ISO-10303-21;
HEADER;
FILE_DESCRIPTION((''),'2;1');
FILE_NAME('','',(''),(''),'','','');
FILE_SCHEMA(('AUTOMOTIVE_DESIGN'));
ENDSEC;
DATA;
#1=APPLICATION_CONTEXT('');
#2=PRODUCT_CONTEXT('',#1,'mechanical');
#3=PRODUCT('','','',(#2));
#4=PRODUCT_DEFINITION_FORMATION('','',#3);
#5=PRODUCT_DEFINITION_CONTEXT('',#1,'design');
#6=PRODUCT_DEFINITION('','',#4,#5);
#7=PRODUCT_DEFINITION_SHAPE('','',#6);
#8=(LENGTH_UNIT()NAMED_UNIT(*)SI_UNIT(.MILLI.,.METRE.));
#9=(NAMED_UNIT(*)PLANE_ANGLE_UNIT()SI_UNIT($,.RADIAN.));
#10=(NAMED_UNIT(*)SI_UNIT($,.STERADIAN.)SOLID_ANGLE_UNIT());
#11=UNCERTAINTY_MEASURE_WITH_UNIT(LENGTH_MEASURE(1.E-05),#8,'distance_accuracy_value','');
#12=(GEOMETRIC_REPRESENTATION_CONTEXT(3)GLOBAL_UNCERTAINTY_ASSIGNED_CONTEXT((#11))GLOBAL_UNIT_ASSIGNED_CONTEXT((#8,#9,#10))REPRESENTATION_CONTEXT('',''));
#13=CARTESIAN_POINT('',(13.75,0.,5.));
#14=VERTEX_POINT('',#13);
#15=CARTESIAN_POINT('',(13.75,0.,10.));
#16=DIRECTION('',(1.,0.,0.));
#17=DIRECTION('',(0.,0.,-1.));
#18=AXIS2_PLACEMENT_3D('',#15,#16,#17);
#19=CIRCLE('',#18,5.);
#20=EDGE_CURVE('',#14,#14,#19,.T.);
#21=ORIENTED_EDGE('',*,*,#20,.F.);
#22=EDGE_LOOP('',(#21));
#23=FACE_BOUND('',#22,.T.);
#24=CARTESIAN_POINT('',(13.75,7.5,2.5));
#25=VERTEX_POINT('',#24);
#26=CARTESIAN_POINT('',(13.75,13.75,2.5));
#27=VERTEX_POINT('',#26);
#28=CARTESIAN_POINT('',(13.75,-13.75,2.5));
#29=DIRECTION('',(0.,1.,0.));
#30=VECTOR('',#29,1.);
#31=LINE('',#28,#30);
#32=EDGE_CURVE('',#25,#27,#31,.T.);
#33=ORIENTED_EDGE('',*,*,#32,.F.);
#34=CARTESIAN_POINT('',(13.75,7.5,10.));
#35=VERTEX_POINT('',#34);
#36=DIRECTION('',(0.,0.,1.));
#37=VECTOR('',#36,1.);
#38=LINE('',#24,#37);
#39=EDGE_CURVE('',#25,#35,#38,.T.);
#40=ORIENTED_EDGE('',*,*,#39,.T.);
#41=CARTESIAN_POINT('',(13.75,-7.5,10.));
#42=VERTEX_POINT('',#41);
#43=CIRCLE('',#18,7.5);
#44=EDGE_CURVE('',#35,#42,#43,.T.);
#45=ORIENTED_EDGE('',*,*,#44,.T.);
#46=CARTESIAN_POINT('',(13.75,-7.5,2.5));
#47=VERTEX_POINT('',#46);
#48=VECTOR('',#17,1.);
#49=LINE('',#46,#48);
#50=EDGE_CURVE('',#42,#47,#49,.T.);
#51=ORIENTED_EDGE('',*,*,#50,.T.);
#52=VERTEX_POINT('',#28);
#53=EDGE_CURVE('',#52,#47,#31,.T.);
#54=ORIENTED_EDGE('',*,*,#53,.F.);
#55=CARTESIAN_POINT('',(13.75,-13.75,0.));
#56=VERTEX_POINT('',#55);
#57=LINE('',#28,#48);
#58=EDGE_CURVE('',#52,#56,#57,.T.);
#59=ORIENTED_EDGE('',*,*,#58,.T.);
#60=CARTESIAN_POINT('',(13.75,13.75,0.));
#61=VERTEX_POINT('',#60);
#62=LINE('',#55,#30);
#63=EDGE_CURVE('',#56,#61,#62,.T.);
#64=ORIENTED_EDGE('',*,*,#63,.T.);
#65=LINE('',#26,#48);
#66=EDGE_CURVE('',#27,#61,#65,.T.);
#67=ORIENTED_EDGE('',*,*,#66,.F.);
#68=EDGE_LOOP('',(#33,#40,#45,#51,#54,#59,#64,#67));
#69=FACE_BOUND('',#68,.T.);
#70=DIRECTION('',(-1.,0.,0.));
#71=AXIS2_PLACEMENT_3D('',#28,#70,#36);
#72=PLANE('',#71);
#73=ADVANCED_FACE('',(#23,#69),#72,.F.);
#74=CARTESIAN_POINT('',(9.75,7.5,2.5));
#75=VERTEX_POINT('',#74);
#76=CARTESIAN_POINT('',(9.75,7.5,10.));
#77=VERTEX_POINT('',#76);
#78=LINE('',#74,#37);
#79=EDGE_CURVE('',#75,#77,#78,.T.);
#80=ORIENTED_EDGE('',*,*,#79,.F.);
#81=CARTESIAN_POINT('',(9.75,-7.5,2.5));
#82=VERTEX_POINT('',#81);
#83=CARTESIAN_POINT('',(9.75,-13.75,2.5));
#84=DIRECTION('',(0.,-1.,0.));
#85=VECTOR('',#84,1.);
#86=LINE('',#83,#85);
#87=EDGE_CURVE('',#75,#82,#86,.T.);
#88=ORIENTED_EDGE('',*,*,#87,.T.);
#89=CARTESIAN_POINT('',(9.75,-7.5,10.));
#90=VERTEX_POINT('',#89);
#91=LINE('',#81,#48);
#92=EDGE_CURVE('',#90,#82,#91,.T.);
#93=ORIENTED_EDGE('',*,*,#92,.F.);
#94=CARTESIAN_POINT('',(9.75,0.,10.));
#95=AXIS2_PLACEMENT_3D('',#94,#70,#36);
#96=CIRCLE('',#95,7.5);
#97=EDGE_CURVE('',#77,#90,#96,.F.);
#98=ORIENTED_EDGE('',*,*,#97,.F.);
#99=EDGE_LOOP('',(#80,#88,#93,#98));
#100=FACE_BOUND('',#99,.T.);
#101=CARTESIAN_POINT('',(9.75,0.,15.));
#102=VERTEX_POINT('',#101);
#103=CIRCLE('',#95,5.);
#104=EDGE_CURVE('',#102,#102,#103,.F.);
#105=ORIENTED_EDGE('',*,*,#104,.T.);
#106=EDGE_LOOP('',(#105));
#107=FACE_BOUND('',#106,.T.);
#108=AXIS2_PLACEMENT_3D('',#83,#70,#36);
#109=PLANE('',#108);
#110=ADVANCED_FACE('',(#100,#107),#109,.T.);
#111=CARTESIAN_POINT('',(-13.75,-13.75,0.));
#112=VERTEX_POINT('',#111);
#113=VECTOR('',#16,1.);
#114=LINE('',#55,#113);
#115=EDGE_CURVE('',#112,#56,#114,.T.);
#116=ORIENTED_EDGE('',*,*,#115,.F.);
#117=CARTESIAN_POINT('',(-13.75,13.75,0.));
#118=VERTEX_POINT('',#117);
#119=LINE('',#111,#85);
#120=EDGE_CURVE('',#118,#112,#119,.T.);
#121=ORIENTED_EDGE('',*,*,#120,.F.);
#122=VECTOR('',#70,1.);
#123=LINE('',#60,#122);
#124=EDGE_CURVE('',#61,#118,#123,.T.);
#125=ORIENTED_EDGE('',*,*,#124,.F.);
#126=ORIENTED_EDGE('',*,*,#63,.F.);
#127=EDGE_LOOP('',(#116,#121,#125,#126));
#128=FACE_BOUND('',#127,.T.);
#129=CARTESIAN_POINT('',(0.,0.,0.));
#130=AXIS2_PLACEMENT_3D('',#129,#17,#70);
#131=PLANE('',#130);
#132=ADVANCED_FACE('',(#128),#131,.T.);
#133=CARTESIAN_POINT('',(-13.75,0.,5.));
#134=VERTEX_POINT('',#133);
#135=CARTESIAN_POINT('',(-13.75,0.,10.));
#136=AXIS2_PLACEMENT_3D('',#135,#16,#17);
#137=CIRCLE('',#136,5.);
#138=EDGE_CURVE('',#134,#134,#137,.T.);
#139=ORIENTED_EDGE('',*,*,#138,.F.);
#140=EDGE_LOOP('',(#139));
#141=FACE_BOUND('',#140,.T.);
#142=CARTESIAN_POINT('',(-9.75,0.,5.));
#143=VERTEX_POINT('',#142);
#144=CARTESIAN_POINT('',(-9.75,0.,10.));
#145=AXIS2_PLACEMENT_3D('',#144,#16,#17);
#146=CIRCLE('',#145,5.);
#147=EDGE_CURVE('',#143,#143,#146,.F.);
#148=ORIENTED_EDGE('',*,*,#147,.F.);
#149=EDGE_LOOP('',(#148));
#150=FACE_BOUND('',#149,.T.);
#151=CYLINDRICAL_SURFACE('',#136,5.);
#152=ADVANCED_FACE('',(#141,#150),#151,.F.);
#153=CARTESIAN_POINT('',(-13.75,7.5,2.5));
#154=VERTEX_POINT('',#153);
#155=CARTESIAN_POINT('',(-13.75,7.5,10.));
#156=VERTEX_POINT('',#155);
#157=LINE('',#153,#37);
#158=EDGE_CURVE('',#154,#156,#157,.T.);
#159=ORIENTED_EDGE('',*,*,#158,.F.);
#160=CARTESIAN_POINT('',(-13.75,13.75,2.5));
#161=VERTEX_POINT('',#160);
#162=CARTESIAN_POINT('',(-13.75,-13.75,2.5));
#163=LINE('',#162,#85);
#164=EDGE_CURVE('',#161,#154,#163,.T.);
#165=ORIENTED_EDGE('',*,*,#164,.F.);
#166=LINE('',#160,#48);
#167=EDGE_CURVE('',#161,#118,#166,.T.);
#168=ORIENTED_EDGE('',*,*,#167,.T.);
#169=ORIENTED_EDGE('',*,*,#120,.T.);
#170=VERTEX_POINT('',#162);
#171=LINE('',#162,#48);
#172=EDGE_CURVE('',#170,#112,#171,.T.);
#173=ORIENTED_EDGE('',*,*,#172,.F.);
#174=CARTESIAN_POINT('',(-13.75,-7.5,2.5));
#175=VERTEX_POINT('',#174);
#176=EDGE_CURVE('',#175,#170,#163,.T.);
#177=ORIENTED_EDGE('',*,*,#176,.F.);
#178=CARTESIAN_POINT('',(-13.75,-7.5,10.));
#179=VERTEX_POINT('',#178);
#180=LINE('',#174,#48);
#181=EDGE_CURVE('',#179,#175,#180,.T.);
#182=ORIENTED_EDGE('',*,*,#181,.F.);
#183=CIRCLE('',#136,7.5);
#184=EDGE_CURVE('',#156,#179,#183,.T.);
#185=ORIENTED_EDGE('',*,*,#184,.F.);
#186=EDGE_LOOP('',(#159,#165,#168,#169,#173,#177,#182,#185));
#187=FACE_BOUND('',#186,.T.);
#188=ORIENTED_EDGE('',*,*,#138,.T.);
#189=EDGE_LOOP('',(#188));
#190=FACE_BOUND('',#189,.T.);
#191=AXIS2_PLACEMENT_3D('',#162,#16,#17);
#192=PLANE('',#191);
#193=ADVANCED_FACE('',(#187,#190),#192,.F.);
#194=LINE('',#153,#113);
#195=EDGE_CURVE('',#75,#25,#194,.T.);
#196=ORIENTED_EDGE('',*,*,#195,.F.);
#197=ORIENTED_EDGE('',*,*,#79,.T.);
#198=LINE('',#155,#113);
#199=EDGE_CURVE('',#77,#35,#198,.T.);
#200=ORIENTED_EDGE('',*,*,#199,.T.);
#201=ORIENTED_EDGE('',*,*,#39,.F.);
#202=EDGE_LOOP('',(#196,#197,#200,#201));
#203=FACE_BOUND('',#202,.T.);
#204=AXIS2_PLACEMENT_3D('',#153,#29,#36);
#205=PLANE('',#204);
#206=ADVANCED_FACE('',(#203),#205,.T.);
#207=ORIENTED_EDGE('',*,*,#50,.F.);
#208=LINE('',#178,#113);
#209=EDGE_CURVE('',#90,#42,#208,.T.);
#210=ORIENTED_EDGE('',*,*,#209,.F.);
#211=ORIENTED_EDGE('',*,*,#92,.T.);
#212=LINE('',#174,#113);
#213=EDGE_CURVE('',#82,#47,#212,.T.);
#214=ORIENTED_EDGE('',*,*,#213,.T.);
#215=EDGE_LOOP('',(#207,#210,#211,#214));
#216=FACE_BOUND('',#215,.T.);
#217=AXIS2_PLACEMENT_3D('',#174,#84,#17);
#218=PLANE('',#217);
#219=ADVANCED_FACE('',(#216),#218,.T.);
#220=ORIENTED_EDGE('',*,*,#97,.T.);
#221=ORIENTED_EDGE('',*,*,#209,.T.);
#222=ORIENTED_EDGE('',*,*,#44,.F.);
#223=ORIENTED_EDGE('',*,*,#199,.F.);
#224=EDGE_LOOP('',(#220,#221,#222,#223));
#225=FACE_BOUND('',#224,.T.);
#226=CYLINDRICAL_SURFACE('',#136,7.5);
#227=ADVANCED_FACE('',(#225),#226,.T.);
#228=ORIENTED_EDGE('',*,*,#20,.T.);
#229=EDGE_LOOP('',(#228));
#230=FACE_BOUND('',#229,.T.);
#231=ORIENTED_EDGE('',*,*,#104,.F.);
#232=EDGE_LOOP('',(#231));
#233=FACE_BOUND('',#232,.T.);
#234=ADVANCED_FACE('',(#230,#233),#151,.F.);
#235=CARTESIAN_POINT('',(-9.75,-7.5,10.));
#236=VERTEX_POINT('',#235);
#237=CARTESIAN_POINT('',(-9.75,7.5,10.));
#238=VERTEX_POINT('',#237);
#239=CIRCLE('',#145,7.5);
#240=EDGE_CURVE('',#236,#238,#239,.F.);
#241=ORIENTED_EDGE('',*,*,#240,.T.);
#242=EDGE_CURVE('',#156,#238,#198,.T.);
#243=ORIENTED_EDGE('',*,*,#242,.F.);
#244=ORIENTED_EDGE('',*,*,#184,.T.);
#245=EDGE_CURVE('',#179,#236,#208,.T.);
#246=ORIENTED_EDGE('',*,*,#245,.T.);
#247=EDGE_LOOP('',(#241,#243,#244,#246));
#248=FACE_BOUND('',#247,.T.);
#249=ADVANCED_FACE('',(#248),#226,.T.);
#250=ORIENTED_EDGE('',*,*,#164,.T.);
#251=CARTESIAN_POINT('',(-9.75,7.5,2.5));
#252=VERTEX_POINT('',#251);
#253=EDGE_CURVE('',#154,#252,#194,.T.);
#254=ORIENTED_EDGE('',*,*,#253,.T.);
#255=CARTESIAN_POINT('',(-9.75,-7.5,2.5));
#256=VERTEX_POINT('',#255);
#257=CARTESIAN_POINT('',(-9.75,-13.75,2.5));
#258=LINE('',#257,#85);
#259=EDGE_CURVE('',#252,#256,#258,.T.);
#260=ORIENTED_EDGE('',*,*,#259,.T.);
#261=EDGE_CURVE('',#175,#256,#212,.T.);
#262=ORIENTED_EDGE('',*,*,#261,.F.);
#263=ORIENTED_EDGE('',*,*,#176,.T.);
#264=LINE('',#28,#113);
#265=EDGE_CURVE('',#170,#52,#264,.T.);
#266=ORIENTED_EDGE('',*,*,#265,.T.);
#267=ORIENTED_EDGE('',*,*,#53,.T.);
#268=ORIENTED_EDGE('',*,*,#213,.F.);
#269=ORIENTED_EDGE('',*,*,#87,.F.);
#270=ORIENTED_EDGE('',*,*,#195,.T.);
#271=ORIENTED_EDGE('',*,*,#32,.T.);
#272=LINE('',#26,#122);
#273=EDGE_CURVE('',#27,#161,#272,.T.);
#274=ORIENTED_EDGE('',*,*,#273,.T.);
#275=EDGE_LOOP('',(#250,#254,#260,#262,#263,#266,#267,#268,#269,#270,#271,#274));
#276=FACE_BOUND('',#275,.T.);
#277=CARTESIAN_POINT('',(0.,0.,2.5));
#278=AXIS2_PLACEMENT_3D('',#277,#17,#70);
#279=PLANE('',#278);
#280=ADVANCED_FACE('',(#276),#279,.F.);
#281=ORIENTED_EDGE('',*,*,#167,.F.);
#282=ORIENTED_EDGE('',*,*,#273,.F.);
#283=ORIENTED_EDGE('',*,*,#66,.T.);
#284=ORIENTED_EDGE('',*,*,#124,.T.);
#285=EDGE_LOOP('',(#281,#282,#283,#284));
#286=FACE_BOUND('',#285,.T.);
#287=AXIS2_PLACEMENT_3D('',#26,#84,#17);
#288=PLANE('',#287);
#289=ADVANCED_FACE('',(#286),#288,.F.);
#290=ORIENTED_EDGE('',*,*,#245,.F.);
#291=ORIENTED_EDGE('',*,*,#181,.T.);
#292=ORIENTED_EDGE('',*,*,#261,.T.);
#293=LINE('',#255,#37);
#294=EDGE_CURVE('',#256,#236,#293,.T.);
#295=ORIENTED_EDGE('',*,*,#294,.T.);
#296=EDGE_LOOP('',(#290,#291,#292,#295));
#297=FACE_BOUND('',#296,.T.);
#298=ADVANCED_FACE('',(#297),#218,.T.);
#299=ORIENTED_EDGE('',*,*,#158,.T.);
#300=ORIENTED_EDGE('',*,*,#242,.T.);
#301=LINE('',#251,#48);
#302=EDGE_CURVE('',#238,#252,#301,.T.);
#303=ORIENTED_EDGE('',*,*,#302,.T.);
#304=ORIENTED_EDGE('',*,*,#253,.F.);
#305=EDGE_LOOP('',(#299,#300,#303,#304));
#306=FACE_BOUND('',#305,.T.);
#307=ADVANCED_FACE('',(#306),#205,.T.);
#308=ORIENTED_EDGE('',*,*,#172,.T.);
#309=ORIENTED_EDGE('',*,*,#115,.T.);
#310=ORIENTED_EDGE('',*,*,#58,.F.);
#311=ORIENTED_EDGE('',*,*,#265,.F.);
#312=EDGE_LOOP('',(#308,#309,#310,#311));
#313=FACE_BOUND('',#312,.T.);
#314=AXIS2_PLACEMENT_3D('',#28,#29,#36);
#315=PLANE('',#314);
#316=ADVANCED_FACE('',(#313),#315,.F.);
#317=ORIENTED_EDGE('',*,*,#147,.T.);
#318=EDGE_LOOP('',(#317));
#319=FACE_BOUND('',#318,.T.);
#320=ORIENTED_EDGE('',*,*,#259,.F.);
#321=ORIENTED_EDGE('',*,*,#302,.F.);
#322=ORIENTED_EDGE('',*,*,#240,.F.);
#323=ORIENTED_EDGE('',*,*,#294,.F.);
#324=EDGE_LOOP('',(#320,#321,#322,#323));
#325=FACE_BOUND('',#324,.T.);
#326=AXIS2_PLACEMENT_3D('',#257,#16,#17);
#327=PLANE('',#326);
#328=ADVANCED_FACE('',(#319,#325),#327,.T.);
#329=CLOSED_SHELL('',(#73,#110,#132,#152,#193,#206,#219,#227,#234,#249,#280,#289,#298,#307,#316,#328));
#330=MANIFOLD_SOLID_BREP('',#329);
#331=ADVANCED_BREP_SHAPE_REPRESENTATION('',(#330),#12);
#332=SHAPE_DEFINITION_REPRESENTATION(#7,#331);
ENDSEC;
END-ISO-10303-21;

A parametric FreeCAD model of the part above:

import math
import FreeCAD as App
import Part
import Sketcher

V = App.Vector
Q = App.Units.Quantity

doc = App.newDocument("Part")
body = doc.addObject("PartDesign::Body", "Body")

sketch1 = body.newObject("Sketcher::SketchObject", "Sketch")
sketch1.AttachmentSupport = (doc.getObject("XY_Plane"), [""])
sketch1.MapMode = "FlatFace"
sketch1.addGeometry(Part.LineSegment(V(-14, -14, 0), V(14, -14, 0)), False)
sketch1.addGeometry(Part.LineSegment(V(14, -14, 0), V(14, 14, 0)), False)
sketch1.addGeometry(Part.LineSegment(V(14, 14, 0), V(-14, 14, 0)), False)
sketch1.addGeometry(Part.LineSegment(V(-14, 14, 0), V(-14, -14, 0)), False)
sketch1.addConstraint(Sketcher.Constraint("Coincident", 0, 2, 1, 1))
sketch1.addConstraint(Sketcher.Constraint("Coincident", 1, 2, 2, 1))
sketch1.addConstraint(Sketcher.Constraint("Coincident", 2, 2, 3, 1))
sketch1.addConstraint(Sketcher.Constraint("Coincident", 3, 2, 0, 1))
sketch1.addConstraint(Sketcher.Constraint("Horizontal", 0))
sketch1.addConstraint(Sketcher.Constraint("Vertical", 1))
sketch1.addConstraint(Sketcher.Constraint("Horizontal", 2))
sketch1.addConstraint(Sketcher.Constraint("Vertical", 3))
sketch1.addConstraint(Sketcher.Constraint("Symmetric", 0, 2, 2, 2, -1, 1))
sketch1.addConstraint(Sketcher.Constraint("Equal", 2, 1))
sketch1.addConstraint(Sketcher.Constraint("DistanceX", 0, 1, 0, 2, Q("27.5 mm")))
pad1 = body.newObject("PartDesign::Pad", "Pad")
pad1.Profile = sketch1
pad1.Length = 2.5

sketch2 = body.newObject("Sketcher::SketchObject", "Sketch001")
sketch2.AttachmentSupport = (doc.getObject("YZ_Plane"), [""])
sketch2.MapMode = "FlatFace"
sketch2.AttachmentOffset = App.Placement(V(0, 0, 13.75), App.Rotation())
sketch2.addGeometry(Part.LineSegment(V(-8, 2, 0), V(8, 2, 0)), False)
sketch2.addGeometry(Part.LineSegment(V(8, 2, 0), V(8, 10, 0)), False)
sketch2.addGeometry(Part.ArcOfCircle(Part.Circle(V(0, 10, 0), V(0, 0, 1), 8), math.radians(0), math.radians(180)), False)
sketch2.addGeometry(Part.LineSegment(V(-8, 10, 0), V(-8, 2, 0)), False)
sketch2.addGeometry(Part.Circle(V(0, 10, 0), V(0, 0, 1), 5), False)
sketch2.addConstraint(Sketcher.Constraint("Coincident", 0, 2, 1, 1))
sketch2.addConstraint(Sketcher.Constraint("Tangent", 1, 2, 2, 1))
sketch2.addConstraint(Sketcher.Constraint("Tangent", 2, 2, 3, 1))
sketch2.addConstraint(Sketcher.Constraint("Coincident", 3, 2, 0, 1))
sketch2.addConstraint(Sketcher.Constraint("Horizontal", 0))
sketch2.addConstraint(Sketcher.Constraint("Vertical", 1))
sketch2.addConstraint(Sketcher.Constraint("Vertical", 3))
sketch2.addConstraint(Sketcher.Constraint("Coincident", 4, 3, 2, 3))
sketch2.addConstraint(Sketcher.Constraint("PointOnObject", 2, 3, -2))
sketch2.addConstraint(Sketcher.Constraint("Diameter", 4, Q("10 mm")))
sketch2.addConstraint(Sketcher.Constraint("Radius", 2, Q("7.5 mm")))
sketch2.addConstraint(Sketcher.Constraint("DistanceY", 1, 1, 1, 2, Q("7.5 mm")))
sketch2.addConstraint(Sketcher.Constraint("DistanceY", -1, 1, 2, 3, Q("10 mm")))
pad2 = body.newObject("PartDesign::Pad", "Pad001")
pad2.Profile = sketch2
pad2.Length = 27.5
pad2.Reversed = True

sketch3 = body.newObject("Sketcher::SketchObject", "Sketch002")
sketch3.AttachmentSupport = (doc.getObject("YZ_Plane"), [""])
sketch3.MapMode = "FlatFace"
sketch3.addGeometry(Part.LineSegment(V(-14, 18, 0), V(-14, 3, 0)), False)
sketch3.addGeometry(Part.LineSegment(V(-14, 3, 0), V(14, 3, 0)), False)
sketch3.addGeometry(Part.LineSegment(V(14, 3, 0), V(14, 18, 0)), False)
sketch3.addGeometry(Part.LineSegment(V(14, 18, 0), V(-14, 18, 0)), False)
sketch3.addConstraint(Sketcher.Constraint("Coincident", 0, 2, 1, 1))
sketch3.addConstraint(Sketcher.Constraint("Coincident", 1, 2, 2, 1))
sketch3.addConstraint(Sketcher.Constraint("Coincident", 2, 2, 3, 1))
sketch3.addConstraint(Sketcher.Constraint("Coincident", 3, 2, 0, 1))
sketch3.addConstraint(Sketcher.Constraint("Vertical", 0))
sketch3.addConstraint(Sketcher.Constraint("Horizontal", 1))
sketch3.addConstraint(Sketcher.Constraint("Vertical", 2))
sketch3.addConstraint(Sketcher.Constraint("Horizontal", 3))
sketch3.addConstraint(Sketcher.Constraint("DistanceX", 1, 1, 1, 2, Q("27.5 mm")))
sketch3.addConstraint(Sketcher.Constraint("DistanceY", -1, 1, 0, 2, Q("2.5 mm")))
sketch3.addConstraint(Sketcher.Constraint("DistanceX", 0, 2, -1, 1, Q("13.75 mm")))
sketch3.addConstraint(Sketcher.Constraint("DistanceY", 0, 2, 0, 1, Q("15.762918 mm")))
pocket1 = body.newObject("PartDesign::Pocket", "Pocket")
pocket1.Profile = sketch3
pocket1.Type = "TwoLengths"
pocket1.Length = 9.75
pocket1.Length2 = 9.75
pocket1.Reversed = True

doc.recompute()
